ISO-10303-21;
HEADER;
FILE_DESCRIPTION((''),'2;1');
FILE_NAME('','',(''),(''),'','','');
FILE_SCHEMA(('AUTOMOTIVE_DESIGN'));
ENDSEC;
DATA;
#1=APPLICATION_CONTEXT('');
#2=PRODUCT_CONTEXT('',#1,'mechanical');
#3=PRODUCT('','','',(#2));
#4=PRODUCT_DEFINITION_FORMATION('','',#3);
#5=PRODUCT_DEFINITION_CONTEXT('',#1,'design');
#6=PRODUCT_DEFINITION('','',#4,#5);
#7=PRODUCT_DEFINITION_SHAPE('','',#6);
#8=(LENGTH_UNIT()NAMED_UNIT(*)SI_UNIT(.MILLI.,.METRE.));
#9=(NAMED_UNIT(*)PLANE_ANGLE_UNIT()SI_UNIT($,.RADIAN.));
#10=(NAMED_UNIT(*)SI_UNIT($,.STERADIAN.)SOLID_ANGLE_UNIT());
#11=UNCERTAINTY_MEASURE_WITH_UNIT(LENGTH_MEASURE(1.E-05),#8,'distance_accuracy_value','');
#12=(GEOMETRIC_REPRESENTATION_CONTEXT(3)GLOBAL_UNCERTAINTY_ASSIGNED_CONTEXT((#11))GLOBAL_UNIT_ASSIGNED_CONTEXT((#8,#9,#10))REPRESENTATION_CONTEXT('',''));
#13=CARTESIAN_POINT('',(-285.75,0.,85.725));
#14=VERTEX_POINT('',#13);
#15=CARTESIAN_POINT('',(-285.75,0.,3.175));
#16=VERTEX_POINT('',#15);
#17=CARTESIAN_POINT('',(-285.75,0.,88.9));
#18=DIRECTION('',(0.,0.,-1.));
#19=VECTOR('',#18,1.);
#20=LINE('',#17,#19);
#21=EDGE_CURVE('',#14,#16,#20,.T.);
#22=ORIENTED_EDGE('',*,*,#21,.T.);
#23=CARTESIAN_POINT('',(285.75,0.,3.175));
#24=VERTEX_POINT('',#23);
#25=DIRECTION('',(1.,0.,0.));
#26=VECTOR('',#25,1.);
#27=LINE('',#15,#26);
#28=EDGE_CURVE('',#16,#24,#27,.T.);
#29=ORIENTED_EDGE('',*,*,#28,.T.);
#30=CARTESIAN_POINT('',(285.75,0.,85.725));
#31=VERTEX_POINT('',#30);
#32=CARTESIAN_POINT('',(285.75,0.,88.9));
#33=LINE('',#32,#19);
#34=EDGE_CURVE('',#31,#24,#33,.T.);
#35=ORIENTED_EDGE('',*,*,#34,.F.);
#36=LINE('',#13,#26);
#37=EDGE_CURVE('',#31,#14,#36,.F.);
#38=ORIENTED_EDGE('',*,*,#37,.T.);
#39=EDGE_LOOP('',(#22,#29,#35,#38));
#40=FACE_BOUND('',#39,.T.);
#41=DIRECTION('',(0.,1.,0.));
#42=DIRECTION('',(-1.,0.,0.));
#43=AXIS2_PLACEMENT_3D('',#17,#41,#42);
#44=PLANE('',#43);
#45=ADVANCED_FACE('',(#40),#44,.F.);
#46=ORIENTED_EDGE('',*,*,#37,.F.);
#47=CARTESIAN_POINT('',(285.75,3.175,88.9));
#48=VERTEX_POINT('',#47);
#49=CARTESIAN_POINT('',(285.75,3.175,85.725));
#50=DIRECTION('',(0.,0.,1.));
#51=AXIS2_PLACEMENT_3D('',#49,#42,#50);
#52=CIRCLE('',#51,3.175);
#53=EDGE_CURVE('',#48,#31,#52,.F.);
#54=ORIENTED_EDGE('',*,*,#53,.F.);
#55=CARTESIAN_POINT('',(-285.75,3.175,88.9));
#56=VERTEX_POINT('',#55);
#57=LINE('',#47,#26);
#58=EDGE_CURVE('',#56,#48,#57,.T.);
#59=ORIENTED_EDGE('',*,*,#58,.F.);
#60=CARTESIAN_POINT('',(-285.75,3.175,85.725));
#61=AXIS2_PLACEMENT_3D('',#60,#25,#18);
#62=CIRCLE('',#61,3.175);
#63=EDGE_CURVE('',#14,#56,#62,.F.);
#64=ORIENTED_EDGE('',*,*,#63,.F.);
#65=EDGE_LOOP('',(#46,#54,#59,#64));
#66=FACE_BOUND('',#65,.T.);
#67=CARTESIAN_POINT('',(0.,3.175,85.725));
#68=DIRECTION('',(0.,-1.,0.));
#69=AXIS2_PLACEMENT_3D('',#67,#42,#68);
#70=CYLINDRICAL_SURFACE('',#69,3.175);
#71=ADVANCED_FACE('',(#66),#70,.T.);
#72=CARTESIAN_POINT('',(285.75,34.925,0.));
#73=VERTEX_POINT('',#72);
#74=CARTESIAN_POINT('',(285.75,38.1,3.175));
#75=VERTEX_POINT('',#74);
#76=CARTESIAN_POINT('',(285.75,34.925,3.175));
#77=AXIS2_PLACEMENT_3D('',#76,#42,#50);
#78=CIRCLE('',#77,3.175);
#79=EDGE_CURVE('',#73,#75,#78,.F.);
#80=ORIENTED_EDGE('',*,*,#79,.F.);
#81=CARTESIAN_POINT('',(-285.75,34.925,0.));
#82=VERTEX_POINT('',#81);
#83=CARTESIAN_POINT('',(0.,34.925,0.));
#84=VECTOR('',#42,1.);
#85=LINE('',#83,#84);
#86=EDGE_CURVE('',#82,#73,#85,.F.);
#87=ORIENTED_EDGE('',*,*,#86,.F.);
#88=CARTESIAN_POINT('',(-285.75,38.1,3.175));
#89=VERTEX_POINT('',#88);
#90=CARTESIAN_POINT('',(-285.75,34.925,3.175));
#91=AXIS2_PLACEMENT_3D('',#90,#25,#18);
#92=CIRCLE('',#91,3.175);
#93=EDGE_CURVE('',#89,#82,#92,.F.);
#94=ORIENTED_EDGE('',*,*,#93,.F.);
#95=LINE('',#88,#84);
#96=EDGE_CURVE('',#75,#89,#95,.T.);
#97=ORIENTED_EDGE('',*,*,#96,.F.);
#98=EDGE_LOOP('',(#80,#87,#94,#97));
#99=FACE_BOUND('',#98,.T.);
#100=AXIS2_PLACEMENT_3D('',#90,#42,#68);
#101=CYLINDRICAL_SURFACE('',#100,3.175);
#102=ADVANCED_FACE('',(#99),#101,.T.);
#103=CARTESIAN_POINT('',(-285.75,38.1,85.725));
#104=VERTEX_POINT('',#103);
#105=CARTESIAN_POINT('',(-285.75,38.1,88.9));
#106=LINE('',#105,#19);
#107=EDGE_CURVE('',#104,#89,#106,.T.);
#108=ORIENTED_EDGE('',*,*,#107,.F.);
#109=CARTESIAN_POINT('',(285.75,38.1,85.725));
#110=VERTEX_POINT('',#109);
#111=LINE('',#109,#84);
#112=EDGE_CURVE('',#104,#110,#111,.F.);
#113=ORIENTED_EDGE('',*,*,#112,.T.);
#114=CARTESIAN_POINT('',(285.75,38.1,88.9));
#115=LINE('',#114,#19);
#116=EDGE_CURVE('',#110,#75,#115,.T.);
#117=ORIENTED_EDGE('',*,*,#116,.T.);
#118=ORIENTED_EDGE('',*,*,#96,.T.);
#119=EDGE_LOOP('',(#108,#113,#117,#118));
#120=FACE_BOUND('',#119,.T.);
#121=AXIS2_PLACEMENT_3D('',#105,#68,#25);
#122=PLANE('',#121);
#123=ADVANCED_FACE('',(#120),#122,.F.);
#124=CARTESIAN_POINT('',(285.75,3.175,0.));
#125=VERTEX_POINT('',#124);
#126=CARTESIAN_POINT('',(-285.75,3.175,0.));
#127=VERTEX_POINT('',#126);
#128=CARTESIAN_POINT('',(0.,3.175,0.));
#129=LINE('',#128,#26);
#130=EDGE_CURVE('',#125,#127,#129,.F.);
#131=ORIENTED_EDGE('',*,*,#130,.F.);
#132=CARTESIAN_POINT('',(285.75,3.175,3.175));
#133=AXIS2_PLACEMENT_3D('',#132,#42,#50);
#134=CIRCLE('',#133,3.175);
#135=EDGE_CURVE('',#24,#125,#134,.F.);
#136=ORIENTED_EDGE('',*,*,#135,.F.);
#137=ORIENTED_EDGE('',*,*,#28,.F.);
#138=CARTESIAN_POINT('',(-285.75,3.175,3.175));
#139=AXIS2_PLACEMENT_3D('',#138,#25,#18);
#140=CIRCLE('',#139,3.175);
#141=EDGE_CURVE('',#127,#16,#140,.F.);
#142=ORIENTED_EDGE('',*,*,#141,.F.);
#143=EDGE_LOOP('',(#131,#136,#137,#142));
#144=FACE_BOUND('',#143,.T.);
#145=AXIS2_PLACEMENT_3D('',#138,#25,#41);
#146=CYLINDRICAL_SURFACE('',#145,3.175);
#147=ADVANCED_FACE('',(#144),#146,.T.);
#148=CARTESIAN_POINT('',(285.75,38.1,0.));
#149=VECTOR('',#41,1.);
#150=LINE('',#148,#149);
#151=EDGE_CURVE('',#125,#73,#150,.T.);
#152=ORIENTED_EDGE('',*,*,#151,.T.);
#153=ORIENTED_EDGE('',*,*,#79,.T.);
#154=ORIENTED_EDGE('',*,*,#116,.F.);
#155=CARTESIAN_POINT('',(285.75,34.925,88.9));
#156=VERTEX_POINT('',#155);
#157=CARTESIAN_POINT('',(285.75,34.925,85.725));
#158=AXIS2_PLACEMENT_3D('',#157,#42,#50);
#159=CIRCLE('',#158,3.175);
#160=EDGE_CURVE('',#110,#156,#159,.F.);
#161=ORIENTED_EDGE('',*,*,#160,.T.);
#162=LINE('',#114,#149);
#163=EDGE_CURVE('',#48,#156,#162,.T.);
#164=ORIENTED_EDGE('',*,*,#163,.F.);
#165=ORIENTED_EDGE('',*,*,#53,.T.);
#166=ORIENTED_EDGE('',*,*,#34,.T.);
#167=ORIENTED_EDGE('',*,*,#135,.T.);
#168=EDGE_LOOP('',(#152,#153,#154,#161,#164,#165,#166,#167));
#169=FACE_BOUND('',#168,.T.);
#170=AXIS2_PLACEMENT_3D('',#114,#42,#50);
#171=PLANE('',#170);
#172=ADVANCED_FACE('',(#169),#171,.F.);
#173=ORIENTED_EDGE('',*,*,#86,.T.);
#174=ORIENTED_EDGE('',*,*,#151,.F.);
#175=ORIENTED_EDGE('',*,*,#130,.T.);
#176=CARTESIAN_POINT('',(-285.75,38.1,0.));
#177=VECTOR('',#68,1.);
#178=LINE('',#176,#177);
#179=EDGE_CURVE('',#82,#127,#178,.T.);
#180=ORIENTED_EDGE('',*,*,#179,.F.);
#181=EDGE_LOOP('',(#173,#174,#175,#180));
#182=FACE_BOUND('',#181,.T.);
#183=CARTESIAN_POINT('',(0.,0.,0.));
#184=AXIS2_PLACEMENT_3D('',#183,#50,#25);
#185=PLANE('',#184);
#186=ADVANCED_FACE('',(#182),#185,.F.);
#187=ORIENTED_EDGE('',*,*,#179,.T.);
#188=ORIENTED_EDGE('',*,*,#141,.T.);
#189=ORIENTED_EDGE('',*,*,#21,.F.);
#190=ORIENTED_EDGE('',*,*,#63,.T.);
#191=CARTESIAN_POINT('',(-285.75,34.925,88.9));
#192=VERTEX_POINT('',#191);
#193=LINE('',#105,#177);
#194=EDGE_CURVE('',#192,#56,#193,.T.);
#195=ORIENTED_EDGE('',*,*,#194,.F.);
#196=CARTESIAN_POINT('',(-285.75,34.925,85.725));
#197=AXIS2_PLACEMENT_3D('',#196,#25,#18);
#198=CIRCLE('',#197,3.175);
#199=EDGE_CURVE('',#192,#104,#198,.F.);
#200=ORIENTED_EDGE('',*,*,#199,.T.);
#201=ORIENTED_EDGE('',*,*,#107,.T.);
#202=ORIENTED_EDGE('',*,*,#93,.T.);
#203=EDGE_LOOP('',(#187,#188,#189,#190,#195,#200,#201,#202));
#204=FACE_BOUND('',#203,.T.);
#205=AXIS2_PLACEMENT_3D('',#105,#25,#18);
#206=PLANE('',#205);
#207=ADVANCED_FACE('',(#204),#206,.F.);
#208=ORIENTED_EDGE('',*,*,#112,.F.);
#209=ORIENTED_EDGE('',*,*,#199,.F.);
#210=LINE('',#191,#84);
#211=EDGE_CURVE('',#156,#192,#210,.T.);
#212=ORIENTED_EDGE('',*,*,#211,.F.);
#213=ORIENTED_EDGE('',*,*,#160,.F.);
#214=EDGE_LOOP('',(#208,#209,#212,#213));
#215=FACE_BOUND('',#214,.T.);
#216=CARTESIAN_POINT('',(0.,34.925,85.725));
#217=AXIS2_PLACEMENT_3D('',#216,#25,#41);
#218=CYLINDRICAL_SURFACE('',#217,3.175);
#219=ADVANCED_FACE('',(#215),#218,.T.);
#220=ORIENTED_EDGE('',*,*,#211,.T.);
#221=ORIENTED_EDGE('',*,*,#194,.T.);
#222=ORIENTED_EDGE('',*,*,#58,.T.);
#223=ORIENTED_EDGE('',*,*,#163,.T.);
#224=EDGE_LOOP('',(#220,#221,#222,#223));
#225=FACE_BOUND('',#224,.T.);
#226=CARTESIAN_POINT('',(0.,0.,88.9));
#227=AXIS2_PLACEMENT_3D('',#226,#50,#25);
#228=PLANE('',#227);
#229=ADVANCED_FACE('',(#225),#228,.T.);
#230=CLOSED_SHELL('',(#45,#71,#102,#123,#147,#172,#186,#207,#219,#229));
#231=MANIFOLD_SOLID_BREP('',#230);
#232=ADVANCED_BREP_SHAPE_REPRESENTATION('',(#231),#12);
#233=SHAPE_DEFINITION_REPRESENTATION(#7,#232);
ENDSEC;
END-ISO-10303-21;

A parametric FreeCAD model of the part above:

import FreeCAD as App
import Part
import Sketcher

V = App.Vector
Q = App.Units.Quantity


def edges_at(feature, points):
    """Names of the edges that pass closest to the given points."""
    edges = feature.Shape.Edges
    near = lambda p: min(range(len(edges)), key=lambda i: edges[i].distToShape(Part.Vertex(*p))[0])
    return sorted({f"Edge{near(p) + 1}" for p in points})

doc = App.newDocument("Part")
params = doc.addObject("Spreadsheet::Sheet", "Params")
for row, (alias, value) in enumerate([
    ("sketch1_width", "22.5 in"),
    ("sketch1_height", "1.5 in"),
    ("pad1_length", "3.5 in"),
    ("fillet_radius", "0.125 in"),
], start=1):
    params.set(f"A{row}", alias)
    params.set(f"B{row}", "=" + value)
    params.setAlias(f"B{row}", alias)

body = doc.addObject("PartDesign::Body", "Body")

sketch1 = body.newObject("Sketcher::SketchObject", "Sketch")
sketch1.AttachmentSupport = (doc.getObject("XY_Plane"), [""])
sketch1.MapMode = "FlatFace"
sketch1.addGeometry([
    Part.LineSegment(V(-285.75, 38.1, 0), V(-285.75, 0, 0)),
    Part.LineSegment(V(-285.75, 0, 0), V(285.75, 0, 0)),
    Part.LineSegment(V(285.75, 0, 0), V(285.75, 38.1, 0)),
    Part.LineSegment(V(285.75, 38.1, 0), V(-285.75, 38.1, 0)),
], False)
sketch1.addConstraint([
    Sketcher.Constraint("Coincident", 0, 2, 1, 1),
    Sketcher.Constraint("Coincident", 1, 2, 2, 1),
    Sketcher.Constraint("Coincident", 2, 2, 3, 1),
    Sketcher.Constraint("Coincident", 3, 2, 0, 1),
    Sketcher.Constraint("Vertical", 0),
    Sketcher.Constraint("Horizontal", 1),
    Sketcher.Constraint("Vertical", 2),
    Sketcher.Constraint("Horizontal", 3),
    Sketcher.Constraint("Symmetric", 0, 2, 1, 2, -1, 1),
    Sketcher.Constraint("DistanceX", 1, 1, 1, 2, Q("22.5 in")),
    Sketcher.Constraint("DistanceY", 0, 2, 0, 1, Q("1.5 in")),
])
sketch1.setExpression("Constraints[9]", "Params.sketch1_width")
sketch1.setExpression("Constraints[10]", "Params.sketch1_height")
pad1 = body.newObject("PartDesign::Pad", "Pad")
pad1.Profile = sketch1
pad1.setExpression("Length", "Params.pad1_length")
doc.recompute()

fillet = body.newObject("PartDesign::Fillet", "Fillet")
fillet.Base = (pad1, edges_at(pad1, [
    (0, 38.1, 88.9),
    (0, 38.1, 0),
    (0, 0, 0),
    (0, 0, 88.9),
]))
fillet.setExpression("Radius", "Params.fillet_radius")

doc.recompute()
